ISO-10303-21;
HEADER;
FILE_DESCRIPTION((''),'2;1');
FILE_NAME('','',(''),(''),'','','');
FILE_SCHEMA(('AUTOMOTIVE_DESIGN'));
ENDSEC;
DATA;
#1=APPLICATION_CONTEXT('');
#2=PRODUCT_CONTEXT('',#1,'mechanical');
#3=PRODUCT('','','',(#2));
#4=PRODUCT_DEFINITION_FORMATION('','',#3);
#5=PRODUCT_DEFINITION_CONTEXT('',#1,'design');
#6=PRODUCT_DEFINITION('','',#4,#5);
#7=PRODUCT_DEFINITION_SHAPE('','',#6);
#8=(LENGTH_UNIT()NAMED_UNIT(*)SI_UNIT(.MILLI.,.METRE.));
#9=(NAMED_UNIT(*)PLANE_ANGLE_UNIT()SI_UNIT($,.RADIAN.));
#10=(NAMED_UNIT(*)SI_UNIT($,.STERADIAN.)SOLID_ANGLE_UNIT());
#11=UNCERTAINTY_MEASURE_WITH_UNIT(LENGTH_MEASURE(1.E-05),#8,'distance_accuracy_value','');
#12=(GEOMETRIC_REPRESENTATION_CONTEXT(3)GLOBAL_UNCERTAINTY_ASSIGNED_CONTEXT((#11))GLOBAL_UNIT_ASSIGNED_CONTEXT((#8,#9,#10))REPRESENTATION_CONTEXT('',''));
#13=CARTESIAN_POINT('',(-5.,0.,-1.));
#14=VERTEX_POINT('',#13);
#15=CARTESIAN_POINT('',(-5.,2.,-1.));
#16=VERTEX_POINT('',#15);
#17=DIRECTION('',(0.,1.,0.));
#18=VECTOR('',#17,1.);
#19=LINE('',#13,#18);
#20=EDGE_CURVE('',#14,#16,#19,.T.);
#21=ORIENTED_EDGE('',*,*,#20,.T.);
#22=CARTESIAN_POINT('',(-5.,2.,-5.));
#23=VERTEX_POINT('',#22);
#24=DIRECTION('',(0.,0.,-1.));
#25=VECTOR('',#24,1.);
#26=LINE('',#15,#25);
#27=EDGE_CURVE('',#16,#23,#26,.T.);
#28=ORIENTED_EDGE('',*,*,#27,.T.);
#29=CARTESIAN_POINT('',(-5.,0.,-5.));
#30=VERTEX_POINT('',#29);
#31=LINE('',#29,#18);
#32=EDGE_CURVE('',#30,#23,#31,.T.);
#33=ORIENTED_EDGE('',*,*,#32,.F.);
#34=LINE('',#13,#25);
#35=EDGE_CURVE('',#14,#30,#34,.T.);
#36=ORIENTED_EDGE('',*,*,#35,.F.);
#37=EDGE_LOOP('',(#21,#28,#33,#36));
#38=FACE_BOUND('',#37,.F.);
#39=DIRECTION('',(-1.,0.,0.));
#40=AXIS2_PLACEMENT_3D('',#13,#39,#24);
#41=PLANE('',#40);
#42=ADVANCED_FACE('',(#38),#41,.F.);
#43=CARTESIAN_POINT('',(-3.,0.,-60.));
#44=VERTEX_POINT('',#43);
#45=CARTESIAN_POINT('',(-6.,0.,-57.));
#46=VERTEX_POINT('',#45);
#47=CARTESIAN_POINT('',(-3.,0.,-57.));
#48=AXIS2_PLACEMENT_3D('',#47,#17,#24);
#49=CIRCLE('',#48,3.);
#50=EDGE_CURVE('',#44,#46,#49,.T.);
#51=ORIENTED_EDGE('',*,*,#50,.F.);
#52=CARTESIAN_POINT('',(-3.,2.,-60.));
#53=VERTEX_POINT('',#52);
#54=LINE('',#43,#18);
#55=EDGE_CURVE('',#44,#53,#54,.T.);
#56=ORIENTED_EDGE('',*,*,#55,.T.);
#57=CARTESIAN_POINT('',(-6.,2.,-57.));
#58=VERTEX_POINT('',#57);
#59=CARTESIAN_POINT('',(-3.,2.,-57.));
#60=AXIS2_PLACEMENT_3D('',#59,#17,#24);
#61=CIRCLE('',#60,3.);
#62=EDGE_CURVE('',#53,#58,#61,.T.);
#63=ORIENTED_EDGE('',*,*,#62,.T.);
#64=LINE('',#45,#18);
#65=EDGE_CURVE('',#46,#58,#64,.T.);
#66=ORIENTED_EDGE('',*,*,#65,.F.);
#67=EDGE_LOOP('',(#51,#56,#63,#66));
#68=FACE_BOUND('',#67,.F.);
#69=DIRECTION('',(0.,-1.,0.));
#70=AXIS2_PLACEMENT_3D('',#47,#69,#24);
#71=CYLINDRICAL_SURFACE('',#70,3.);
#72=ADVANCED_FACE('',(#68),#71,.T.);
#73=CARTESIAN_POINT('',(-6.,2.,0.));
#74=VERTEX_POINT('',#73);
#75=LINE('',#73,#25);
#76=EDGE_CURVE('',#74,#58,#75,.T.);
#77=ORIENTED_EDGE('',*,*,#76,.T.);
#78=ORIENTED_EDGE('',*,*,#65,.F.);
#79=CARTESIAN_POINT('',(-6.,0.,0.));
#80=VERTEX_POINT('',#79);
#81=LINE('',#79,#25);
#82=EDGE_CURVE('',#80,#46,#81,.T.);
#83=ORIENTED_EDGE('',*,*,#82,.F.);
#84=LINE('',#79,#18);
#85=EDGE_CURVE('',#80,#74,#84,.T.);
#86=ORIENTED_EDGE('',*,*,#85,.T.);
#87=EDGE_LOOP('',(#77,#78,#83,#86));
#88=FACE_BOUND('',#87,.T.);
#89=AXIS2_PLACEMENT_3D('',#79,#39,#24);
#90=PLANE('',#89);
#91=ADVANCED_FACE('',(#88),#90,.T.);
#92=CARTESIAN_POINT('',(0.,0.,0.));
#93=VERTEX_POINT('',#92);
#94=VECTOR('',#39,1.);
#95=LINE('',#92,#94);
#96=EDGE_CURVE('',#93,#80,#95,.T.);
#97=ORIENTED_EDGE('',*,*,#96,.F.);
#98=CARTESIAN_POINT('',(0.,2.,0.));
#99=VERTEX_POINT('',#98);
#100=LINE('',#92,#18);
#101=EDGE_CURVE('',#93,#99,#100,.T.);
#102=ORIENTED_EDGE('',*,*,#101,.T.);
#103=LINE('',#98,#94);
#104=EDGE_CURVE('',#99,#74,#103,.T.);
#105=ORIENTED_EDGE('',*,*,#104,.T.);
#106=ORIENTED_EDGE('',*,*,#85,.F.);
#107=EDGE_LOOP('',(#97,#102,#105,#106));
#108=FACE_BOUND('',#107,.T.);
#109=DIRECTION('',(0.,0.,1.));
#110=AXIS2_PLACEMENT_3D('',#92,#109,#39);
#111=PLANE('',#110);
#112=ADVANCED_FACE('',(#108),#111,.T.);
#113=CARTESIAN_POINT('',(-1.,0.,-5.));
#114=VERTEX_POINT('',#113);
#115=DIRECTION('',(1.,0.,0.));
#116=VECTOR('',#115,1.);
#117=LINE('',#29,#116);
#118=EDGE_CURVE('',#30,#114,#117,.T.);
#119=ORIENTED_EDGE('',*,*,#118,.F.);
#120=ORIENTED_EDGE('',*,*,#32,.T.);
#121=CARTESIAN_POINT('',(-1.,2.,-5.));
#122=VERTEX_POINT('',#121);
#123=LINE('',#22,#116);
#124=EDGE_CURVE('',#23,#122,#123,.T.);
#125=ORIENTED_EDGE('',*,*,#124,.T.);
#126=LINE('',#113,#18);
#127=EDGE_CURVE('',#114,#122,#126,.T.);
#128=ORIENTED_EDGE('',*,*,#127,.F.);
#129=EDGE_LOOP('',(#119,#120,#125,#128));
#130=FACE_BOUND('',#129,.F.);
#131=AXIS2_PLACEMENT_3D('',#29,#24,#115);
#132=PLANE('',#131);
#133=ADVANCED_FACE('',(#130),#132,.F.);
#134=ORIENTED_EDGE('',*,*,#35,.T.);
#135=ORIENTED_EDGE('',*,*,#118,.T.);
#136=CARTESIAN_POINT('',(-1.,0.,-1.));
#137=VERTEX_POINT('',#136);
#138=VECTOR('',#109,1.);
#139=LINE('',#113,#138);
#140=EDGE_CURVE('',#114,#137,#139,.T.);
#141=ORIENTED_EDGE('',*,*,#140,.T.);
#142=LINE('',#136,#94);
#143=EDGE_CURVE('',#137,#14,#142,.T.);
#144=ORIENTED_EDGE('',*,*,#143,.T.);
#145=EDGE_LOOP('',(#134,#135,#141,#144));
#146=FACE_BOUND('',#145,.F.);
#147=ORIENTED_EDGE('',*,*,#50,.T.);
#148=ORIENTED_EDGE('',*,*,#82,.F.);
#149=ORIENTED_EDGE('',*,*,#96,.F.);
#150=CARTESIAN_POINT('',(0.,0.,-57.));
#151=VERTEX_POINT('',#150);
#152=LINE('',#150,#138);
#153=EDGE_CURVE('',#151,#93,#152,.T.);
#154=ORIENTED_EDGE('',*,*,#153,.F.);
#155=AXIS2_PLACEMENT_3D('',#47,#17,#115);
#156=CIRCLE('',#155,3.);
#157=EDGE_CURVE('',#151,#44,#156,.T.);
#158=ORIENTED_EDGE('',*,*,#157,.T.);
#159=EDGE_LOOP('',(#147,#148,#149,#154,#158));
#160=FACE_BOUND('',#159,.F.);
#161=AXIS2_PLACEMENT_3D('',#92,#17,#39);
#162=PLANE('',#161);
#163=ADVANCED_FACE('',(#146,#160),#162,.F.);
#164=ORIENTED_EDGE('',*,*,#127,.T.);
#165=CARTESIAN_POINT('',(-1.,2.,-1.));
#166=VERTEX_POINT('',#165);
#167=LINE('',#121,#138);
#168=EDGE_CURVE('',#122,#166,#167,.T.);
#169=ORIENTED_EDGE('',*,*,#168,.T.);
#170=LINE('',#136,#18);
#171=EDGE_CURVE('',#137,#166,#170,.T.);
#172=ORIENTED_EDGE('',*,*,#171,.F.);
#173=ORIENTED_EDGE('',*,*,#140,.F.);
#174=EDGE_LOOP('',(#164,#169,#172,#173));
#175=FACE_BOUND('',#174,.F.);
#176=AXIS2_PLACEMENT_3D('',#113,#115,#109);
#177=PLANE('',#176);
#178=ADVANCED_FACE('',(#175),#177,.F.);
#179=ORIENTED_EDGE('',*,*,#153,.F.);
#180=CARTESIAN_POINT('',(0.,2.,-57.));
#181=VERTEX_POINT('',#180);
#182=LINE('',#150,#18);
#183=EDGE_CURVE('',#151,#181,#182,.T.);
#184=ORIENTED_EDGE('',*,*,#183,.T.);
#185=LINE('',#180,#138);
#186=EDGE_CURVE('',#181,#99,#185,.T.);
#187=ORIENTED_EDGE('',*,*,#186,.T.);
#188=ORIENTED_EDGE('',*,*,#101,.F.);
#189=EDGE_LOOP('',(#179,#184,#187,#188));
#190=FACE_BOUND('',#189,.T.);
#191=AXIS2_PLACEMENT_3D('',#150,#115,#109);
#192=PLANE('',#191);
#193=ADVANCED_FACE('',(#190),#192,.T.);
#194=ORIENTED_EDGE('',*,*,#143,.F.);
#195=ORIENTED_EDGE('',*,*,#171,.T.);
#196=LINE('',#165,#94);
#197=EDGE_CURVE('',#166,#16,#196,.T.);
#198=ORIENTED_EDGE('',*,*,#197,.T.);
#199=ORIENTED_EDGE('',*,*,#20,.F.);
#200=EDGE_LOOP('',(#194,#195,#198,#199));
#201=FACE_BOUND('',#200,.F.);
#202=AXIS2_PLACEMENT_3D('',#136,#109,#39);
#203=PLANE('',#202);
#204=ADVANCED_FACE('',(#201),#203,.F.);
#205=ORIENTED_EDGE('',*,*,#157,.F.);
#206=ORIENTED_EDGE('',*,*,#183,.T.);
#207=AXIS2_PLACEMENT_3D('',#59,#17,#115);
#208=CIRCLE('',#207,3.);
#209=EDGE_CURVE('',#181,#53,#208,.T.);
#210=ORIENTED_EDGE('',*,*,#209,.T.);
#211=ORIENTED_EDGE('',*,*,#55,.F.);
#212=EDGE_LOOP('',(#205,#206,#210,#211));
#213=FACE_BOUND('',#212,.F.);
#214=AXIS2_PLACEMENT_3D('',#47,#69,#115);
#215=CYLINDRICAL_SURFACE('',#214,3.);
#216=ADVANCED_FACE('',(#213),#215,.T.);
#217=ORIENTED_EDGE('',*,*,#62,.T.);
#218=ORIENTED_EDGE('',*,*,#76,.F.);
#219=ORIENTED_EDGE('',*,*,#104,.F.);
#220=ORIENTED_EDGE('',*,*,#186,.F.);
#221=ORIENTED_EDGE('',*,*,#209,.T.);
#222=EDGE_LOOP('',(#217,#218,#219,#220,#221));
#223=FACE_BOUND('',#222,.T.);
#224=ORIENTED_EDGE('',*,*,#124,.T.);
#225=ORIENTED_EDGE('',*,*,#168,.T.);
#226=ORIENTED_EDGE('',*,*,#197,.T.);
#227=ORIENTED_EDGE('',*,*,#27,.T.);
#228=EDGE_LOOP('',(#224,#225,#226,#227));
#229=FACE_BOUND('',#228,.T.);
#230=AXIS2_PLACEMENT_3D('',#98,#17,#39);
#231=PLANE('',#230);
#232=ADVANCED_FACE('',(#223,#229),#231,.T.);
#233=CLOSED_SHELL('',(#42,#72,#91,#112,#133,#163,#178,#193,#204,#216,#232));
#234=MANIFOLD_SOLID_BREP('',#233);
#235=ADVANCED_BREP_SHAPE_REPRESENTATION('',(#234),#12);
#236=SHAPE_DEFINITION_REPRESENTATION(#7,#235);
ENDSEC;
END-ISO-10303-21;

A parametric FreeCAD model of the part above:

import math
import FreeCAD as App
import Part
import Sketcher

V = App.Vector
Q = App.Units.Quantity


def add_polygon(sketch, points):
    """Adds a closed chain of lines whose ends are joined by coincident constraints."""
    first, n = sketch.GeometryCount, len(points)
    for a, b in zip(points, points[1:] + points[:1]):
        sketch.addGeometry(Part.LineSegment(App.Vector(*a, 0), App.Vector(*b, 0)), False)
    for i in range(n):
        sketch.addConstraint(Sketcher.Constraint("Coincident", first + i, 2, first + (i + 1) % n, 1))

doc = App.newDocument("Part")
body = doc.addObject("PartDesign::Body", "Body")

# Sketch on XZ plane
sketch1 = doc.addObject("Sketcher::SketchObject", "Sketch")
body.addObject(sketch1)
sketch1.AttachmentSupport = (doc.XZ_Plane, [""])
sketch1.MapMode = "FlatFace"
sketch1.addGeometry(Part.LineSegment(V(-6, 0, 0), V(0, 0, 0)), False)  # 0
sketch1.addGeometry(Part.LineSegment(V(0, 0, 0), V(0, -57, 0)), False)  # 1
sketch1.addGeometry(Part.ArcOfCircle(Part.Circle(V(-3, -57, 0), V(0, 0, 1), 3), math.radians(180), math.radians(360)), False)  # 2
sketch1.addGeometry(Part.LineSegment(V(-6, -57, 0), V(-6, 0, 0)), False)  # 3
add_polygon(sketch1, [(-1, -5), (-1, -1), (-5, -1), (-5, -5)])  # lines 4-7
sketch1.addConstraint([
    Sketcher.Constraint("Coincident", 0, 2, 1, 1),
    Sketcher.Constraint("Tangent", 1, 2, 2, 2),
    Sketcher.Constraint("Tangent", 2, 1, 3, 1),
    Sketcher.Constraint("Coincident", 3, 2, 0, 1),
    Sketcher.Constraint("Horizontal", 0),
    Sketcher.Constraint("Vertical", 1),
    Sketcher.Constraint("Vertical", 3),
    Sketcher.Constraint("Vertical", 4),
    Sketcher.Constraint("Horizontal", 5),
    Sketcher.Constraint("Vertical", 6),
    Sketcher.Constraint("Horizontal", 7),
    Sketcher.Constraint("Coincident", 0, 2, -1, 1),
    Sketcher.Constraint("Equal", 7, 4),
    Sketcher.Constraint("Radius", 2, Q("3 mm")),
    Sketcher.Constraint("DistanceX", 5, 2, 5, 1, Q("4 mm")),
    Sketcher.Constraint("DistanceY", 1, 2, 1, 1, Q("57 mm")),
    Sketcher.Constraint("DistanceX", 4, 2, -1, 1, Q("1 mm")),
    Sketcher.Constraint("DistanceY", 4, 2, -1, 1, Q("1 mm")),
])
pad1 = doc.addObject("PartDesign::Pad", "Pad")
body.addObject(pad1)
pad1.Profile = sketch1
pad1.Length = 2
pad1.Reversed = True

doc.recompute()
